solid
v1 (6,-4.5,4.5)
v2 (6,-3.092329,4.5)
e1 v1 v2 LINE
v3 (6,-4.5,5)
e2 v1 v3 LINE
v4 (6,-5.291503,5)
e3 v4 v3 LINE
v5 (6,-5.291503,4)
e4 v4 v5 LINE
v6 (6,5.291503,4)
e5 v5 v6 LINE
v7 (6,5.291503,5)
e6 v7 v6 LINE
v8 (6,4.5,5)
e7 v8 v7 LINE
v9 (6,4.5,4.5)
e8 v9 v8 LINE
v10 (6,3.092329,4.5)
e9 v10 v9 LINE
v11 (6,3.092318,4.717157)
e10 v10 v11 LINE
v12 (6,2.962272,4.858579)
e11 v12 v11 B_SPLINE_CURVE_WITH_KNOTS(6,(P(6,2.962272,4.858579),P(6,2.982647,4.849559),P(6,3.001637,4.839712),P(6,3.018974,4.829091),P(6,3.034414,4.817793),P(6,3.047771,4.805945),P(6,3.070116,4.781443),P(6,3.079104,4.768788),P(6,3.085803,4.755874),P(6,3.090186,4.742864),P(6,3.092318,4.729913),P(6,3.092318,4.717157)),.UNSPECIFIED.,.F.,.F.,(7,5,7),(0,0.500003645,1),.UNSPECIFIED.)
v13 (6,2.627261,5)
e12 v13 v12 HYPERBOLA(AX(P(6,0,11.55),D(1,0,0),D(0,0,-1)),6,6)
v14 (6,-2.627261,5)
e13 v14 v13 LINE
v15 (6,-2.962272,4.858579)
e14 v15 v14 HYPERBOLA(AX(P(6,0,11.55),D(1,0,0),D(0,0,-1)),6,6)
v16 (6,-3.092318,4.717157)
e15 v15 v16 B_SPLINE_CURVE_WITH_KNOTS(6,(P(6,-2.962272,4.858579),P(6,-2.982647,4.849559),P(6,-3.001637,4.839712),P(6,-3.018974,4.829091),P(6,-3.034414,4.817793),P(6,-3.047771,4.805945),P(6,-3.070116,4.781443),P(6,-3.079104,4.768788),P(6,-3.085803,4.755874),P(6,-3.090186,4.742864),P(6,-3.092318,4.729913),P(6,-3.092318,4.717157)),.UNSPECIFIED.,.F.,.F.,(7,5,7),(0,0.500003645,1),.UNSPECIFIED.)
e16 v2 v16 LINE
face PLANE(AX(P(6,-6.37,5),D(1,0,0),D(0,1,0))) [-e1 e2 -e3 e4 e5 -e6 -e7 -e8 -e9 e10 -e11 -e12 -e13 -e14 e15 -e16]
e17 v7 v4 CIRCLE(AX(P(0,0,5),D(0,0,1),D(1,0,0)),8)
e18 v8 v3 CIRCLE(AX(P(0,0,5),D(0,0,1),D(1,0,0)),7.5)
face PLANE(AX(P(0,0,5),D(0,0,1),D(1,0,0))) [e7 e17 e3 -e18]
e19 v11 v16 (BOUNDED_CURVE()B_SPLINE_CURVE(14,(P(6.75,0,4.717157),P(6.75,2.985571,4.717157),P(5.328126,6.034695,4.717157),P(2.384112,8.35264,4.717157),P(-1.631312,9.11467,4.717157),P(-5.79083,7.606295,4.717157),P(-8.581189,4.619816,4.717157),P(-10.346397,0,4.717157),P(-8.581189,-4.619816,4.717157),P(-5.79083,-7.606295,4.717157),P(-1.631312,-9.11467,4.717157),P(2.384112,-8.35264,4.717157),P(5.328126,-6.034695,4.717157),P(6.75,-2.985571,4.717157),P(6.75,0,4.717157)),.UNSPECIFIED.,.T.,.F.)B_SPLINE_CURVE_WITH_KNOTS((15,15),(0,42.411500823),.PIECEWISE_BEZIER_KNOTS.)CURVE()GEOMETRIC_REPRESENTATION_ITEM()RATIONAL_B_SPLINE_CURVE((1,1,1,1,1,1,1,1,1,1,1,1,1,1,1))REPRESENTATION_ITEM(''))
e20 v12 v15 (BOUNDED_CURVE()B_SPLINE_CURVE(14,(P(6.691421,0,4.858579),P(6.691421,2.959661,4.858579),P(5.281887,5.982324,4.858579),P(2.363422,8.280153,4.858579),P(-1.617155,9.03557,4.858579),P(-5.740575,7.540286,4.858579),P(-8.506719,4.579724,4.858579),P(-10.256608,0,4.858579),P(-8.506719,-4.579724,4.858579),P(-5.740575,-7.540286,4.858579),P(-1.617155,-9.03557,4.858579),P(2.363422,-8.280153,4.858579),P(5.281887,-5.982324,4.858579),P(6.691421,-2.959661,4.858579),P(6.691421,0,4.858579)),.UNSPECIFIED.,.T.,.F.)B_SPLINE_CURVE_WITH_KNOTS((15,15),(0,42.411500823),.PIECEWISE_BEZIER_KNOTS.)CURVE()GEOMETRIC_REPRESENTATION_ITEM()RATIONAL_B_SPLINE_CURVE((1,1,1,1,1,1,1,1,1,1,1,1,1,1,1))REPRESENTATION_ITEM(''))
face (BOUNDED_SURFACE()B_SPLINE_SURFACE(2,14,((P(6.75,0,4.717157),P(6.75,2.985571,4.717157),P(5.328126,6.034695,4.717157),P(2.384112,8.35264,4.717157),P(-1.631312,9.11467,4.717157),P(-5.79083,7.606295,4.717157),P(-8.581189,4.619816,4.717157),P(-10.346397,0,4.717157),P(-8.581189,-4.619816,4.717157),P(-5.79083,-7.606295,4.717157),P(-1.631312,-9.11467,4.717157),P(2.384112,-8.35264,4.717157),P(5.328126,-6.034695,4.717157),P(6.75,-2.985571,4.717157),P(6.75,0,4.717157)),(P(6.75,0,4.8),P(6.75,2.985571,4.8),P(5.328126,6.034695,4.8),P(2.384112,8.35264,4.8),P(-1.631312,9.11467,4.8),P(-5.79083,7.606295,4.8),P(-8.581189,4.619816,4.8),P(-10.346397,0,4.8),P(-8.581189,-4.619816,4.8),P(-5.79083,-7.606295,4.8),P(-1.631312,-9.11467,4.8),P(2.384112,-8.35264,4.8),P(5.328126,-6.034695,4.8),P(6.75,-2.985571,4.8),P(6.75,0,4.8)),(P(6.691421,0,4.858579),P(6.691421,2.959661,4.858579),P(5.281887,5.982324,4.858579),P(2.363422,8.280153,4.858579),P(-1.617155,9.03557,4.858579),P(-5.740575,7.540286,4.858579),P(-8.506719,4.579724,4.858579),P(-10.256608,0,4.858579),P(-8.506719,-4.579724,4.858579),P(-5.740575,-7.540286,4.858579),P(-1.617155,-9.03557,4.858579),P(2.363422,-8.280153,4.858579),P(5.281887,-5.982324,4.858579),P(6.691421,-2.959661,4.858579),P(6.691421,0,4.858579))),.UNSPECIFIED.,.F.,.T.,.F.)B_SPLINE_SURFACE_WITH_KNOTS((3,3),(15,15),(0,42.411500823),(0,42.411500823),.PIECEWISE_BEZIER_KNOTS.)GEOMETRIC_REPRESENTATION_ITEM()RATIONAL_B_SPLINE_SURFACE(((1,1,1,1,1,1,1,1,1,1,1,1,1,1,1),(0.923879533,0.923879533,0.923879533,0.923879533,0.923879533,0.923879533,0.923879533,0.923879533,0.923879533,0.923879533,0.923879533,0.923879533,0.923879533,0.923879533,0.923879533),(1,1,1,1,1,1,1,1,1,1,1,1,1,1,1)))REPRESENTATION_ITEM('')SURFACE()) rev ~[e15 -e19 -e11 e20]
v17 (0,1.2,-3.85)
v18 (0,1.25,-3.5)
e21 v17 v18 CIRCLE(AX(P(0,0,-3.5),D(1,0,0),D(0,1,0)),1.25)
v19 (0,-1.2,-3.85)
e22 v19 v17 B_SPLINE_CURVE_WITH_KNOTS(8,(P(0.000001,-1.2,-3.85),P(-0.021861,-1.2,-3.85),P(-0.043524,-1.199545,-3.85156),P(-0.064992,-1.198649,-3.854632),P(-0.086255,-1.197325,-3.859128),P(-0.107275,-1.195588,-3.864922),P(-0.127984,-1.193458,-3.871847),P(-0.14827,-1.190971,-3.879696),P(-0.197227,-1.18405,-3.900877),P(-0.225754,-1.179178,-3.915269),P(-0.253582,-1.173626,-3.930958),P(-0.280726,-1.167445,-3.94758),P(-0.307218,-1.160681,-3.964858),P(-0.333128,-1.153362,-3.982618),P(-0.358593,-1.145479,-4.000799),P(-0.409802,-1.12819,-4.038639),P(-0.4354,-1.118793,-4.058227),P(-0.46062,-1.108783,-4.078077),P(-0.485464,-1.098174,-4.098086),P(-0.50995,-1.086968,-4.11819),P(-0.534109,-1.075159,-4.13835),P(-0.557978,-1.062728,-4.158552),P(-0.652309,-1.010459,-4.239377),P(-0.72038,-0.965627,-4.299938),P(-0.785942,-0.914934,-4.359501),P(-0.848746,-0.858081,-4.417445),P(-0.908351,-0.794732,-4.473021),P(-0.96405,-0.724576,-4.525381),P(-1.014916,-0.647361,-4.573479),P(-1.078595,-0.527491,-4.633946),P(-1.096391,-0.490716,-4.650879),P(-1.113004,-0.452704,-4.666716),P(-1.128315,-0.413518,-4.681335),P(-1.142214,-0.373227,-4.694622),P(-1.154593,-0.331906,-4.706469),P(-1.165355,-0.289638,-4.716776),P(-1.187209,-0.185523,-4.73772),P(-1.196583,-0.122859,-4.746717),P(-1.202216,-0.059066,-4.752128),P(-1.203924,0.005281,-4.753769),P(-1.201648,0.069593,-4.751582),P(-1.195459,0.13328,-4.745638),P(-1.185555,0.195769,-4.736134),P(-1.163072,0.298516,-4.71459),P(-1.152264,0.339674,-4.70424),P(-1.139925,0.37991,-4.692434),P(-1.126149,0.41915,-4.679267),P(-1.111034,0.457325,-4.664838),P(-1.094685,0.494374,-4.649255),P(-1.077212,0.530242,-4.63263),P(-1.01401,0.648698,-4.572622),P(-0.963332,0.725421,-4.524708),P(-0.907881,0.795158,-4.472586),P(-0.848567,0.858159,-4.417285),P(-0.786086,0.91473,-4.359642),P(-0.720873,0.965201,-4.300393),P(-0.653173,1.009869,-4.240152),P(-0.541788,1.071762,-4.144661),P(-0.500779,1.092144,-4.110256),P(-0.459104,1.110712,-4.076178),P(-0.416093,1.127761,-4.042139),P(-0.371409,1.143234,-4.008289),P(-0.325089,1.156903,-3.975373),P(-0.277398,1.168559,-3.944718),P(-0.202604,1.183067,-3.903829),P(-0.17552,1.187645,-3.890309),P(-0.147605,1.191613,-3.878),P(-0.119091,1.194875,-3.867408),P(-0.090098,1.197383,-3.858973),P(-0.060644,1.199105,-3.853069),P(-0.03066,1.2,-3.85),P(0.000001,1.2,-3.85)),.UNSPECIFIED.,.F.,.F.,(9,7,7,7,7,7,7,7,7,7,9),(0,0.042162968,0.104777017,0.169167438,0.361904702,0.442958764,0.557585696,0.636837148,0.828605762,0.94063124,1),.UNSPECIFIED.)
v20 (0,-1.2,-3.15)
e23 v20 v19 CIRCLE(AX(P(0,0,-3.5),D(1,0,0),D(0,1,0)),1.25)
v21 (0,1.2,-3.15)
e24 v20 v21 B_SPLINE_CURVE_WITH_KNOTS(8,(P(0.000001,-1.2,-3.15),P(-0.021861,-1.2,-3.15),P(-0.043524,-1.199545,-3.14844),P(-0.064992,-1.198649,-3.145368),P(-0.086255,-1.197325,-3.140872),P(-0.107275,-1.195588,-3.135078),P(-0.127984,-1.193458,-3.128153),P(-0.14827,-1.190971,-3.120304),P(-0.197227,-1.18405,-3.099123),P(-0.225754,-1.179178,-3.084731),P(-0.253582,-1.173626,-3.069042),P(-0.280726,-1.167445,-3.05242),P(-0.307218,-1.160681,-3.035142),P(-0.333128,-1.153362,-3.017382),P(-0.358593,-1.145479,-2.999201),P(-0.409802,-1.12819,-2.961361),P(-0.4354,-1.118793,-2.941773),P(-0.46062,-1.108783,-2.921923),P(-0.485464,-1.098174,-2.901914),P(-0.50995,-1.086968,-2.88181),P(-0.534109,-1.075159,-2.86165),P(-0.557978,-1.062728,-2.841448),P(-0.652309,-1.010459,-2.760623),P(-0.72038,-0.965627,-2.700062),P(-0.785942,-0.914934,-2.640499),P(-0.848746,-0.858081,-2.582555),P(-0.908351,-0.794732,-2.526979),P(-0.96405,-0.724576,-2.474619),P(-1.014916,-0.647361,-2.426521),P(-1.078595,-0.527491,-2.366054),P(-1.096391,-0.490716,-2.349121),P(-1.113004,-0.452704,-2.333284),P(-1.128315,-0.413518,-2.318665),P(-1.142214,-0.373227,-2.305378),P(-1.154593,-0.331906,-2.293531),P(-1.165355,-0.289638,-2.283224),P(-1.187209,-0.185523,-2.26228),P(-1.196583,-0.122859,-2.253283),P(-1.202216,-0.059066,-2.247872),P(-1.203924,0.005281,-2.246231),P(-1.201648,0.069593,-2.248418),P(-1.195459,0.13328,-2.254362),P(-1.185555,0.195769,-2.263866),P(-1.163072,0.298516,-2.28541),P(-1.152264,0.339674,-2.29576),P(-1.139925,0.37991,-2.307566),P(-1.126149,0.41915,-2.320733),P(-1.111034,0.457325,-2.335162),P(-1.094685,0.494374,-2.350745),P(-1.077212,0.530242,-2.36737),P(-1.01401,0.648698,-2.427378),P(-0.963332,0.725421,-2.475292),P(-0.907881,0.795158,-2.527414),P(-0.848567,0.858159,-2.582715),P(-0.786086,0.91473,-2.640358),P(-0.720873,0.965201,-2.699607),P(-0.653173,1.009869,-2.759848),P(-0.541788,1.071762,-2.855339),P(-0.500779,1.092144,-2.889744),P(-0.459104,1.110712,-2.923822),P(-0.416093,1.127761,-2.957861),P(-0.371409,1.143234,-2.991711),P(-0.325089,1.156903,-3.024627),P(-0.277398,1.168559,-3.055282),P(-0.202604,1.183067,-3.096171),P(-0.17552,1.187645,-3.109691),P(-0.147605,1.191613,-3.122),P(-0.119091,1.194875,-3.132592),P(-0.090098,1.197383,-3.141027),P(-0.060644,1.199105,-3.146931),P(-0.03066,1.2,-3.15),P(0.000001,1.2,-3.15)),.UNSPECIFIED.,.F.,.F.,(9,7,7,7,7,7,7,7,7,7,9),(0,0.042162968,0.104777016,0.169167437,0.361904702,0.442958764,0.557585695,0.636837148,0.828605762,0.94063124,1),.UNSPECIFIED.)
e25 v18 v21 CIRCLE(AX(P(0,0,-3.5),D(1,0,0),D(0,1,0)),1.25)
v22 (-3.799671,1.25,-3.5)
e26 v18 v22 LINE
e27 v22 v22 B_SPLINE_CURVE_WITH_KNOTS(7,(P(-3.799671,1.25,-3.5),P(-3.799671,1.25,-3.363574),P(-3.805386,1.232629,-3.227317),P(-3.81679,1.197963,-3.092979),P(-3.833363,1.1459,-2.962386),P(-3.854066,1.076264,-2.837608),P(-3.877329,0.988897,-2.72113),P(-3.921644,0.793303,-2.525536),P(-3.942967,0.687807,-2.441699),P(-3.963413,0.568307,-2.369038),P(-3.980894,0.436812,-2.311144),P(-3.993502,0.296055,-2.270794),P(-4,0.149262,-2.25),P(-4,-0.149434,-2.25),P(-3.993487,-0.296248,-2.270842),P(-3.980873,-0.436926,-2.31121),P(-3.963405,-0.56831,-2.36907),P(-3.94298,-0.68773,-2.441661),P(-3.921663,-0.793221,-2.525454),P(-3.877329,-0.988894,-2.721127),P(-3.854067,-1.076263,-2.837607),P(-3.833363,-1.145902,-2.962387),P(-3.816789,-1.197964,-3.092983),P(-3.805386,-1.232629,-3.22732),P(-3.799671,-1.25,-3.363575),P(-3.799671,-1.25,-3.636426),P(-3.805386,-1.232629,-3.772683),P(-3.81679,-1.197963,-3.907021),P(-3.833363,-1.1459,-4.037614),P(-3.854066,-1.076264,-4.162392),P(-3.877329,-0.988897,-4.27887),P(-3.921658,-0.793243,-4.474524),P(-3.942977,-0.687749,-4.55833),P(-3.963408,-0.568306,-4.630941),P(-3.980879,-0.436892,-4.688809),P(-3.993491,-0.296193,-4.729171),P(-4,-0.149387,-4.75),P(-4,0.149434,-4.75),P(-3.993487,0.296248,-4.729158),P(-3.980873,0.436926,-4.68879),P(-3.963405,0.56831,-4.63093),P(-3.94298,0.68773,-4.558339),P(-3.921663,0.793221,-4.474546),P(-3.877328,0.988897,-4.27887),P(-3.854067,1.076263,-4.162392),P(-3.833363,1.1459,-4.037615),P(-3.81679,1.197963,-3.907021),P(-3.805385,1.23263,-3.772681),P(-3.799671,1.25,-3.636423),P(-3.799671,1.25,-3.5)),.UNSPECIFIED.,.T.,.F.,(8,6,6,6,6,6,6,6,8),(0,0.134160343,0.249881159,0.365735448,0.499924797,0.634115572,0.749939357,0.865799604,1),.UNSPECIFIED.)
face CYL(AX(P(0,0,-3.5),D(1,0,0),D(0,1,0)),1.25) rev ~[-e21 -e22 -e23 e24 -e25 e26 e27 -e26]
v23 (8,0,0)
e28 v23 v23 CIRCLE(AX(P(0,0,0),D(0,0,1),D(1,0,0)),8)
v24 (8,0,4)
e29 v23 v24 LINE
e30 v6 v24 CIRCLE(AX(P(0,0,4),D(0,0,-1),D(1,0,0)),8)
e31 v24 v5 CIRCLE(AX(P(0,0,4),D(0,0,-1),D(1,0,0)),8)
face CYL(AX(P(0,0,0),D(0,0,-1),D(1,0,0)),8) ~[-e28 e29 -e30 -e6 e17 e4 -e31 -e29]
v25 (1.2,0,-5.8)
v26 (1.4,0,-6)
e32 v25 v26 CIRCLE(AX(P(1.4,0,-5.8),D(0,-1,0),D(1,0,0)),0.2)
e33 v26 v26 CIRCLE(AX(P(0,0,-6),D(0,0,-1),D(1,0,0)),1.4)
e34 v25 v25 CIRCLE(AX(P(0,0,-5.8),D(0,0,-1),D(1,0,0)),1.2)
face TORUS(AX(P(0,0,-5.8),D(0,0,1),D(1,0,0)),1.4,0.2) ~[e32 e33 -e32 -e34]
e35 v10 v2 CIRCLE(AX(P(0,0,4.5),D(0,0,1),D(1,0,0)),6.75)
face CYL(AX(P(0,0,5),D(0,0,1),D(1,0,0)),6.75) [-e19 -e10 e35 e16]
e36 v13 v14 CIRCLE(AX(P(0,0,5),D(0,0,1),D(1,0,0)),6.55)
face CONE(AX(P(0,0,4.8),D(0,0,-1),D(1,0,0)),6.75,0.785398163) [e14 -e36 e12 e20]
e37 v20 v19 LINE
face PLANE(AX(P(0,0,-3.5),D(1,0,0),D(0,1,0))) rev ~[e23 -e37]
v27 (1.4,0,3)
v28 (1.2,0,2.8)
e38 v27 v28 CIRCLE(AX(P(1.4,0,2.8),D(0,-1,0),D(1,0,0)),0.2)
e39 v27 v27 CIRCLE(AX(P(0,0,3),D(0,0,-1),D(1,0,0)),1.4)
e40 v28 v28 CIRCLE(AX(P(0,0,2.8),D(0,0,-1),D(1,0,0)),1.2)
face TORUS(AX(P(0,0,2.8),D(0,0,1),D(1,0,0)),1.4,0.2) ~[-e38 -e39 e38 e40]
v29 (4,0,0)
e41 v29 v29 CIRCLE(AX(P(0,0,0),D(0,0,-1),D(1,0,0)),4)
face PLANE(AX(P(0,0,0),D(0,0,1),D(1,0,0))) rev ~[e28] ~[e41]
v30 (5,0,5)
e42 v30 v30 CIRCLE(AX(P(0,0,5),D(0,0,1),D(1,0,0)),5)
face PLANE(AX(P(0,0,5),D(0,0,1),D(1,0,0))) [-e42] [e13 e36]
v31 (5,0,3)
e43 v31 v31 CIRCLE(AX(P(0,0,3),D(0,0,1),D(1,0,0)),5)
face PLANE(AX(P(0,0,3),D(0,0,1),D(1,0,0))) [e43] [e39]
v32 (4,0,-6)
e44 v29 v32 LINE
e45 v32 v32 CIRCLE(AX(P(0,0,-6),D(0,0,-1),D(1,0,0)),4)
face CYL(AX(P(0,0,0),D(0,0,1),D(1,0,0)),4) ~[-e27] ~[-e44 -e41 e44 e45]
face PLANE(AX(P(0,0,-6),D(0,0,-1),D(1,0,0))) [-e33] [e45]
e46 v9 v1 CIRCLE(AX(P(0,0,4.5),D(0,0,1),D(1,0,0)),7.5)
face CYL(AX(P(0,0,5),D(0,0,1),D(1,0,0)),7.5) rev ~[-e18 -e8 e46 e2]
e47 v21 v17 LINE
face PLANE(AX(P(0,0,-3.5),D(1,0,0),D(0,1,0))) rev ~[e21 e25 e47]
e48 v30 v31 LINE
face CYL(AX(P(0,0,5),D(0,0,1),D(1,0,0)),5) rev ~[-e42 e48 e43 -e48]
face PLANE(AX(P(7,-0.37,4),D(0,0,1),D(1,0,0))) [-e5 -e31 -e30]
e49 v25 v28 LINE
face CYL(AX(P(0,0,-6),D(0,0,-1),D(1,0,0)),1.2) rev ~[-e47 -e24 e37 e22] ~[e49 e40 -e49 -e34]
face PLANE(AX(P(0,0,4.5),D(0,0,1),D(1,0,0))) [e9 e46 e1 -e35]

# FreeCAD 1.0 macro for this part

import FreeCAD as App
import Part
import Sketcher

V = App.Vector


def edges_at(feature, points):
    """Names of the edges that pass closest to the given points."""
    edges = feature.Shape.Edges
    near = lambda p: min(range(len(edges)), key=lambda i: edges[i].distToShape(Part.Vertex(*p))[0])
    return sorted({f"Edge{near(p) + 1}" for p in points})

doc = App.newDocument("Part")
body = doc.addObject("PartDesign::Body", "Body")

sketch1 = body.newObject("Sketcher::SketchObject", "Sketch")
sketch1.AttachmentSupport = (doc.getObject("XY_Plane"), [""])
sketch1.MapMode = "FlatFace"
sketch1.addGeometry(Part.Circle(V(0, 0, 0), V(0, 0, 1), 8), False)
sketch1.addConstraint([
    Sketcher.Constraint("Coincident", 0, 3, -1, 1),
    Sketcher.Constraint("Diameter", 0, 16.0),
])
pad1 = body.newObject("PartDesign::Pad", "Pad")
pad1.Profile = sketch1
pad1.Length = 5

sketch2 = body.newObject("Sketcher::SketchObject", "Sketch001")
sketch2.AttachmentSupport = (doc.getObject("XY_Plane"), [""])
sketch2.MapMode = "FlatFace"
sketch2.addGeometry(Part.Circle(V(0, 0, 0), V(0, 0, 1), 4), False)
sketch2.addConstraint([
    Sketcher.Constraint("Coincident", 0, 3, -1, 1),
    Sketcher.Constraint("Diameter", 0, 8.0),
])
pad2 = body.newObject("PartDesign::Pad", "Pad001")
pad2.Profile = sketch2
pad2.Length = 6
pad2.Reversed = True

sketch3 = body.newObject("Sketcher::SketchObject", "Sketch002")
sketch3.AttachmentSupport = (doc.getObject("XY_Plane"), [""])
sketch3.MapMode = "FlatFace"
sketch3.AttachmentOffset = App.Placement(V(0, 0, -6), App.Rotation())
sketch3.addGeometry(Part.Circle(V(0, 0, 0), V(0, 0, 1), 1.2), False)
sketch3.addConstraint([
    Sketcher.Constraint("Coincident", 0, 3, -1, 1),
    Sketcher.Constraint("Diameter", 0, 2.4),
])
pocket1 = body.newObject("PartDesign::Pocket", "Pocket")
pocket1.Profile = sketch3
pocket1.Length = 9
pocket1.Reversed = True

sketch4 = body.newObject("Sketcher::SketchObject", "Sketch003")
sketch4.AttachmentSupport = (doc.getObject("XY_Plane"), [""])
sketch4.MapMode = "FlatFace"
sketch4.AttachmentOffset = App.Placement(V(0, 0, 5), App.Rotation())
sketch4.addGeometry(Part.Circle(V(0, 0, 0), V(0, 0, 1), 5), False)
sketch4.addConstraint([
    Sketcher.Constraint("Coincident", 0, 3, -1, 1),
    Sketcher.Constraint("Diameter", 0, 10.0),
])
pocket2 = body.newObject("PartDesign::Pocket", "Pocket001")
pocket2.Profile = sketch4
pocket2.Length = 2

sketch5 = body.newObject("Sketcher::SketchObject", "Sketch004")
sketch5.AttachmentSupport = (doc.getObject("XY_Plane"), [""])
sketch5.MapMode = "FlatFace"
sketch5.AttachmentOffset = App.Placement(V(0, 0, 5), App.Rotation())
sketch5.addGeometry([
    Part.Circle(V(0, 0, 0), V(0, 0, 1), 8),
    Part.Circle(V(0, 0, 0), V(0, 0, 1), 7),
], False)
sketch5.addConstraint([
    Sketcher.Constraint("Coincident", 0, 3, -1, 1),
    Sketcher.Constraint("Coincident", 1, 3, -1, 1),
    Sketcher.Constraint("Diameter", 0, 15.0),
    Sketcher.Constraint("Diameter", 1, 13.5),
])
pocket3 = body.newObject("PartDesign::Pocket", "Pocket002")
pocket3.Profile = sketch5
pocket3.Length = 0.5
doc.recompute()

chamfer = body.newObject("PartDesign::Chamfer", "Chamfer")
chamfer.Base = (pocket3, edges_at(pocket3, [(-6.75, 0, 5)]))
chamfer.Size = 0.2
doc.recompute()

fillet = body.newObject("PartDesign::Fillet", "Fillet")
fillet.Base = (chamfer, edges_at(chamfer, [(-6.75, 0, 4.8), (-1.2, 0, 3), (-1.2, 0, -6)]))
fillet.Radius = 0.2

sketch6 = body.newObject("Sketcher::SketchObject", "Sketch005")
sketch6.AttachmentSupport = (doc.getObject("YZ_Plane"), [""])
sketch6.MapMode = "FlatFace"
sketch6.addGeometry(Part.Circle(V(0, -3.5, 0), V(0, 0, 1), 1.2), False)
sketch6.addConstraint([
    Sketcher.Constraint("PointOnObject", 0, 3, -2),
    Sketcher.Constraint("Diameter", 0, 2.5),
    Sketcher.Constraint("DistanceY", 0, 3, -1, 1, 3.5),
])
pocket4 = body.newObject("PartDesign::Pocket", "Pocket003")
pocket4.Profile = sketch6
pocket4.Length = 4.5

sketch7 = body.newObject("Sketcher::SketchObject", "Sketch006")
sketch7.AttachmentSupport = (doc.getObject("XY_Plane"), [""])
sketch7.MapMode = "FlatFace"
sketch7.AttachmentOffset = App.Placement(V(0, 0, 5), App.Rotation())
sketch7.addGeometry([
    Part.LineSegment(V(6, 5.6, 0), V(6, -6.4, 0)),
    Part.LineSegment(V(6, -6.4, 0), V(8, -6.4, 0)),
    Part.LineSegment(V(8, -6.4, 0), V(8, 5.6, 0)),
    Part.LineSegment(V(8, 5.6, 0), V(6, 5.6, 0)),
], False)
sketch7.addConstraint([
    Sketcher.Constraint("Coincident", 0, 2, 1, 1),
    Sketcher.Constraint("Coincident", 1, 2, 2, 1),
    Sketcher.Constraint("Coincident", 2, 2, 3, 1),
    Sketcher.Constraint("Coincident", 3, 2, 0, 1),
    Sketcher.Constraint("Vertical", 0),
    Sketcher.Constraint("Horizontal", 1),
    Sketcher.Constraint("Vertical", 2),
    Sketcher.Constraint("Horizontal", 3),
    Sketcher.Constraint("DistanceX", 1, 1, 1, 2, 2.0),
    Sketcher.Constraint("DistanceY", 0, 2, 0, 1, 12.0),
    Sketcher.Constraint("DistanceX", -1, 1, 0, 2, 6.0),
    Sketcher.Constraint("DistanceY", 0, 2, -1, 1, 6.37),
])
pocket5 = body.newObject("PartDesign::Pocket", "Pocket004")
pocket5.Profile = sketch7
pocket5.Length = 1

doc.recompute()
